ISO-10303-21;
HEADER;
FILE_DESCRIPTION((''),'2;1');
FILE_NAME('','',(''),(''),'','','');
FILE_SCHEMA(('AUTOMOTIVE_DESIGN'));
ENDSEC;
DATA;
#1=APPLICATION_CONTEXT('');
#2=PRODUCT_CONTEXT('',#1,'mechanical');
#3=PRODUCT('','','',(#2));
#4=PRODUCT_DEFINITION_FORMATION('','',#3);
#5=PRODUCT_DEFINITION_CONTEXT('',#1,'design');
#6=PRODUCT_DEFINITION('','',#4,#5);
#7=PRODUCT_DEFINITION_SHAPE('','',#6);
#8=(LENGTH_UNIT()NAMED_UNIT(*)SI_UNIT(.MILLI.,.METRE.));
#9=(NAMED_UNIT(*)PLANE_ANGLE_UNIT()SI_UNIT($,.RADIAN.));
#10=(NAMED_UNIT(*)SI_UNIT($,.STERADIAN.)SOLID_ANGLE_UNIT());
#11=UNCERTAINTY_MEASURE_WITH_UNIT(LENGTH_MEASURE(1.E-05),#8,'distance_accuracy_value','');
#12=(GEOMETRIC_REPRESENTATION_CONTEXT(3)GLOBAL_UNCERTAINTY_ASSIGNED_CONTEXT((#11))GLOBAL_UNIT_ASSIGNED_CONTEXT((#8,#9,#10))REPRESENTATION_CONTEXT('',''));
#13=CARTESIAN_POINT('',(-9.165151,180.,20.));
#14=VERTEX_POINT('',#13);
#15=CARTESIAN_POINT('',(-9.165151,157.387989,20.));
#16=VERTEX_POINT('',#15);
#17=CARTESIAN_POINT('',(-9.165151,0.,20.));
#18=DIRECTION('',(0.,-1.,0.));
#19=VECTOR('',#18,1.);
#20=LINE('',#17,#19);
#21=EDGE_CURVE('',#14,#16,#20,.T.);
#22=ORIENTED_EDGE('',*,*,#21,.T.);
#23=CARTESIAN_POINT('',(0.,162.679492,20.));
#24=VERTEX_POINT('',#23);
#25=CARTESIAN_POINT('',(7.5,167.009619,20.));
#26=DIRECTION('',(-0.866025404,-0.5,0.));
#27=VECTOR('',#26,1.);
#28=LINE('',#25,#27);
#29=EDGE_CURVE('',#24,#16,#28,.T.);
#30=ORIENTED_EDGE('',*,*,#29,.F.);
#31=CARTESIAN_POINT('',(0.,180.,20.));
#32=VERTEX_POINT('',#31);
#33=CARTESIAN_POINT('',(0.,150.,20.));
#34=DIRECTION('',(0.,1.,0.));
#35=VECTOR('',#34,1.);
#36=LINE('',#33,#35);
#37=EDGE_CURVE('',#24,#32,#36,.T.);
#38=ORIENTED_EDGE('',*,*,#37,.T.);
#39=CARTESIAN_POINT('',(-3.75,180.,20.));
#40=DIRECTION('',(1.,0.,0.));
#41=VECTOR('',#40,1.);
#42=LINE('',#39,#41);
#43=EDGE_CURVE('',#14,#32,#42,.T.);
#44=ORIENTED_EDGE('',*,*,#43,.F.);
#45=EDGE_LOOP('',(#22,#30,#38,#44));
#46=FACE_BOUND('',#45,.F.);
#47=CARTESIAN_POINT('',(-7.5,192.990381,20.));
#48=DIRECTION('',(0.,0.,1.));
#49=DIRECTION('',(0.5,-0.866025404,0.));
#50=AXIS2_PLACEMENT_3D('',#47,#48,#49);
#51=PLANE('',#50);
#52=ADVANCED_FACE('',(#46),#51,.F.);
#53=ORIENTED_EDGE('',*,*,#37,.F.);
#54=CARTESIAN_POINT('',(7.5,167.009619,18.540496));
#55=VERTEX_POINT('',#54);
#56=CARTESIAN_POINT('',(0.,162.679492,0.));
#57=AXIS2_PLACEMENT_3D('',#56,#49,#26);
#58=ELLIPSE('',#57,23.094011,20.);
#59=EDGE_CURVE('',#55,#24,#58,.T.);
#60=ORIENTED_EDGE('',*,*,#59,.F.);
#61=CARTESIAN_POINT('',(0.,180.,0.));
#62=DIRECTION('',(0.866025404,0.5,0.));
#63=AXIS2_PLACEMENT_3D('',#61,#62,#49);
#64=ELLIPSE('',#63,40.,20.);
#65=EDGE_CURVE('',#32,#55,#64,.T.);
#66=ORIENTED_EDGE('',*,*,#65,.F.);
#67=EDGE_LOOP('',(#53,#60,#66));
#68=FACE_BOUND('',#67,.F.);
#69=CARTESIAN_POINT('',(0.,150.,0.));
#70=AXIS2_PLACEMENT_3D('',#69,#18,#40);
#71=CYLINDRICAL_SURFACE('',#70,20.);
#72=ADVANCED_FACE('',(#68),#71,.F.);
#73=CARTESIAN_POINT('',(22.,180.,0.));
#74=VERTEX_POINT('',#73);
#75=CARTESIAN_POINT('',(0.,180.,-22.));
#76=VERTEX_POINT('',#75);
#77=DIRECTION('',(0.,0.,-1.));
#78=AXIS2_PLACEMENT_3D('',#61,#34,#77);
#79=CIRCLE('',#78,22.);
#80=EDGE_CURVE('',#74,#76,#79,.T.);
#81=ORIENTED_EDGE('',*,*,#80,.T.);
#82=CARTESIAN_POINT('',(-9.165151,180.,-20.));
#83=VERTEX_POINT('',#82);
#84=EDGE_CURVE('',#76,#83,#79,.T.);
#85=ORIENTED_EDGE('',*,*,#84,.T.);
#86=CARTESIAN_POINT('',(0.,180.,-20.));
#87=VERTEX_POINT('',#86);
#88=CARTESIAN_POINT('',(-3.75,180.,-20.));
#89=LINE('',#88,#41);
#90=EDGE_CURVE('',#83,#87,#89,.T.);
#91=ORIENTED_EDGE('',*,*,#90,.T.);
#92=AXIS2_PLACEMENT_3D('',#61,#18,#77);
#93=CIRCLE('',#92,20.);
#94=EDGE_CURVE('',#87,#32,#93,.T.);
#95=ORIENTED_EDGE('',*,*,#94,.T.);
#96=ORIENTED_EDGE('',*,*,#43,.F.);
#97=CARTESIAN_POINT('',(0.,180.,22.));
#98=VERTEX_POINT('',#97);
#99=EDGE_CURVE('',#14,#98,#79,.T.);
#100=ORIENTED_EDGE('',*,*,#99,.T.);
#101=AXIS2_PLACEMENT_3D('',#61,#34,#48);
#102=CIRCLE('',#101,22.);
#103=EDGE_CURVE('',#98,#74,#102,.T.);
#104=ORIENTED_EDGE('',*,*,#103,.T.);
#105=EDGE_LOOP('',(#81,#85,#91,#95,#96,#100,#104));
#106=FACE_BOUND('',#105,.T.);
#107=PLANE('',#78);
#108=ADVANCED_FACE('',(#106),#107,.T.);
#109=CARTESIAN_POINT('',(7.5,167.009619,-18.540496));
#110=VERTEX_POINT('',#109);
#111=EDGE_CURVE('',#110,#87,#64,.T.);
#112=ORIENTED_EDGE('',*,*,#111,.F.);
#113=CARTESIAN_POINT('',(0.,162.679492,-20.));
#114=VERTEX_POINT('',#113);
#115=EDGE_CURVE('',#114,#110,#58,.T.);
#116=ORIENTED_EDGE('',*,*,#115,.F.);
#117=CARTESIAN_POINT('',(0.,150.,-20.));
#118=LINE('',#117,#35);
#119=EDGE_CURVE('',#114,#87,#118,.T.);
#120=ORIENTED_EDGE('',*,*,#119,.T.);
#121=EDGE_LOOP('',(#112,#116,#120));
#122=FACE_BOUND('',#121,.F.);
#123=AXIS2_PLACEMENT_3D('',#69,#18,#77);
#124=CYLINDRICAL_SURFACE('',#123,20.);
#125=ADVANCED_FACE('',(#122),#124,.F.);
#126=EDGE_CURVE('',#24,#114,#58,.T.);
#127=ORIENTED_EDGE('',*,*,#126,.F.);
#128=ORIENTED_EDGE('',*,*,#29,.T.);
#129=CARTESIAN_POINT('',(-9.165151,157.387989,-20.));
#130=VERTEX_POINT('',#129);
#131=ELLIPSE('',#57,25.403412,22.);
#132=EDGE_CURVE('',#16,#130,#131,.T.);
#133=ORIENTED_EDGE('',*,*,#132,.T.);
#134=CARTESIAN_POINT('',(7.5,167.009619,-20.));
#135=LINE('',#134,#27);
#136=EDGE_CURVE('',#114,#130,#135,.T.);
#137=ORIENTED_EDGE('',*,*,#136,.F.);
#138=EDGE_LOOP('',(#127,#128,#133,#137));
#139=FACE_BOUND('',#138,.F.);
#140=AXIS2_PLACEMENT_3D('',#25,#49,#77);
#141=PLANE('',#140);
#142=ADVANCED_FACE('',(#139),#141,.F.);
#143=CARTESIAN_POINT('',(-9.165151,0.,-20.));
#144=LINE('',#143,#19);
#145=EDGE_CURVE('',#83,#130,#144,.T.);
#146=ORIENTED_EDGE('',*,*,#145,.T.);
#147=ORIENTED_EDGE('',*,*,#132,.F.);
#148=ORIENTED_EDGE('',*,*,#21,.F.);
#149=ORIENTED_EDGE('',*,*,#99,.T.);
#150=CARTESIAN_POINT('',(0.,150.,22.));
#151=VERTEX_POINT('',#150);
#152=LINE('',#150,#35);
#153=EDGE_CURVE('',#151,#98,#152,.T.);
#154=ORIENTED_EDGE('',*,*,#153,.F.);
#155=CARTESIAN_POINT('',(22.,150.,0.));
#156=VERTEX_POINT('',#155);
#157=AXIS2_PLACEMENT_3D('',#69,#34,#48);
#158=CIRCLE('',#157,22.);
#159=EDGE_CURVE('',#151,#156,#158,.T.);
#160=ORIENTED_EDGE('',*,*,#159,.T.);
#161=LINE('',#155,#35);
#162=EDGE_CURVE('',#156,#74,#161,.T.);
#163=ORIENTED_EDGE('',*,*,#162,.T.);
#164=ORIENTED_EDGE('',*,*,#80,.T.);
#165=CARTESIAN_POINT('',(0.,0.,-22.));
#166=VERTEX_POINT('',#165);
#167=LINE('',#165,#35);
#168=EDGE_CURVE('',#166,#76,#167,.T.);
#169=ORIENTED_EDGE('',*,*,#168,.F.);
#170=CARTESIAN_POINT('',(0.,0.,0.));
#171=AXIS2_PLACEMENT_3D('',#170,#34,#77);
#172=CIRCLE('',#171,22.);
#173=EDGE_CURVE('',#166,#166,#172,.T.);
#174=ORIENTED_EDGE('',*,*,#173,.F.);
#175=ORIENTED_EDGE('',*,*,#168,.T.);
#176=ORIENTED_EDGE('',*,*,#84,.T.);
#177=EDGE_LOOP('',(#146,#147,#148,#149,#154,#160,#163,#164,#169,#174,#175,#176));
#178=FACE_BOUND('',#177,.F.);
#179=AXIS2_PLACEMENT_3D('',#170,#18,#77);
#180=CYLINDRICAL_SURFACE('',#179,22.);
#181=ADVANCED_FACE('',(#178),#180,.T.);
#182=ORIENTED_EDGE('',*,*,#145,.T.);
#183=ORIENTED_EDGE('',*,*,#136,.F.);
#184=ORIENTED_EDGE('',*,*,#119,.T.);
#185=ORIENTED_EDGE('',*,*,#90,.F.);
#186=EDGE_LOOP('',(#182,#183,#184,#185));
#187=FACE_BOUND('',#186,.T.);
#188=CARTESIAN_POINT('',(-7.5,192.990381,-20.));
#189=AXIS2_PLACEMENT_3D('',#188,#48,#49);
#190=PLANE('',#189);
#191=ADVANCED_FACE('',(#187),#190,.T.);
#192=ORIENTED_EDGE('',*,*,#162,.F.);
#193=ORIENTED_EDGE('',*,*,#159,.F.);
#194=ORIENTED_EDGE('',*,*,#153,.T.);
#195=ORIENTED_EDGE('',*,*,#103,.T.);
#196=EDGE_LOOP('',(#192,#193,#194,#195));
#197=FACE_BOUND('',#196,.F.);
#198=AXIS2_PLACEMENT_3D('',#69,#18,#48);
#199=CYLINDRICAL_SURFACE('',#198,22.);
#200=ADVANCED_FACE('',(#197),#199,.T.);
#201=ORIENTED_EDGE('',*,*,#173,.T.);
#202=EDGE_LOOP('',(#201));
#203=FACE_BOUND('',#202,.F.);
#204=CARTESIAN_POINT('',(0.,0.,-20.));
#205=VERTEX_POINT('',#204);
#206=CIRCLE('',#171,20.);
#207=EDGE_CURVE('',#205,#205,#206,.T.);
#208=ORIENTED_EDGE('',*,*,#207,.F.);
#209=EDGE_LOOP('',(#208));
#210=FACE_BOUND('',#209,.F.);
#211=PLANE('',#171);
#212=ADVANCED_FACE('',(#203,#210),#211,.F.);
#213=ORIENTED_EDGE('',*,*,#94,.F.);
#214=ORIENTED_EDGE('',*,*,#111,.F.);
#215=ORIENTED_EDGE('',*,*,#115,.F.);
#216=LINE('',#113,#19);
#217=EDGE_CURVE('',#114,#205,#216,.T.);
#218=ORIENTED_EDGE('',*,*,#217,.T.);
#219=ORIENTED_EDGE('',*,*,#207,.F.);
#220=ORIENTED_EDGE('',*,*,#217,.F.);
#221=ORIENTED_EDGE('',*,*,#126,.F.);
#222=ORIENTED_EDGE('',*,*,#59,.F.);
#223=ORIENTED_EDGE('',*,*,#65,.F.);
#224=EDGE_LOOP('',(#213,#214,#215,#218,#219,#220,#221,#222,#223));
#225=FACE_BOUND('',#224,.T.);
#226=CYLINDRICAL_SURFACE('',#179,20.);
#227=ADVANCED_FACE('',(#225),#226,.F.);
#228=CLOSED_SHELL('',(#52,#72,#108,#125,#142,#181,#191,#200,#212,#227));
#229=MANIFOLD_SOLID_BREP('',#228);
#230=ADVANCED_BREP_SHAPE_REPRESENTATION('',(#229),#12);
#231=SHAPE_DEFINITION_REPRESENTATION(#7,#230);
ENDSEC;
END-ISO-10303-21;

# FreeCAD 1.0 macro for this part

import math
import FreeCAD as App
import Part
import Sketcher

V = App.Vector
Q = App.Units.Quantity

doc = App.newDocument("Part")
body = doc.addObject("PartDesign::Body", "Body")

# Sketch on XZ plane
sketch1 = body.newObject("Sketcher::SketchObject", "Sketch")
sketch1.AttachmentSupport = (doc.getObject("XZ_Plane"), [""])
sketch1.MapMode = "FlatFace"
sketch1.addGeometry([
    Part.Circle(V(0, 0, 0), V(0, 0, 1), 22),
    Part.Circle(V(0, 0, 0), V(0, 0, 1), 20),
], False)
sketch1.addConstraint([
    Sketcher.Constraint("Coincident", 0, 3, -1, 1),
    Sketcher.Constraint("Coincident", 1, 3, -1, 1),
    Sketcher.Constraint("Diameter", 0, Q("44 mm")),
    Sketcher.Constraint("Diameter", 1, Q("40 mm")),
])
pad1 = body.newObject("PartDesign::Pad", "Pad")
pad1.Profile = sketch1
pad1.Length = 180
pad1.Reversed = True

# Sketch on an angled plane
sketch2 = body.newObject("Sketcher::SketchObject", "Sketch001")
sketch2.Placement = App.Placement(V(77.942286, 45, 0), App.Rotation(V(0.5, -0.866025404, 0), V(0, 0, -1), V(0.866025404, 0.5, 0), "ZXY"))
sketch2.addGeometry([
    Part.LineSegment(V(-171, 20, 0), V(-171, -20, 0)),
    Part.LineSegment(V(-171, -20, 0), V(-141, -20, 0)),
    Part.LineSegment(V(-141, -20, 0), V(-141, 20, 0)),
    Part.LineSegment(V(-141, 20, 0), V(-171, 20, 0)),
], False)
sketch2.addConstraint([
    Sketcher.Constraint("Coincident", 0, 2, 1, 1),
    Sketcher.Constraint("Coincident", 1, 2, 2, 1),
    Sketcher.Constraint("Coincident", 2, 2, 3, 1),
    Sketcher.Constraint("Coincident", 3, 2, 0, 1),
    Sketcher.Constraint("Vertical", 0),
    Sketcher.Constraint("Horizontal", 1),
    Sketcher.Constraint("Vertical", 2),
    Sketcher.Constraint("Horizontal", 3),
    Sketcher.Constraint("DistanceX", 1, 1, 1, 2, Q("30 mm")),
    Sketcher.Constraint("DistanceY", 0, 2, 0, 1, Q("40 mm")),
    Sketcher.Constraint("DistanceY", 0, 2, -1, 1, Q("20 mm")),
    Sketcher.Constraint("DistanceX", 0, 2, -1, 1, Q("170.884573 mm")),
])
pocket1 = body.newObject("PartDesign::Pocket", "Pocket")
pocket1.Profile = sketch2
pocket1.Length = 63

# Sketch on XZ plane
sketch3 = body.newObject("Sketcher::SketchObject", "Sketch002")
sketch3.AttachmentSupport = (doc.getObject("XZ_Plane"), [""])
sketch3.MapMode = "FlatFace"
sketch3.AttachmentOffset = App.Placement(V(0, 0, -150), App.Rotation())
sketch3.addGeometry([
    Part.ArcOfCircle(Part.Circle(V(0, 0, 0), V(0, 0, 1), 20), math.radians(0), math.radians(90)),  # 0
    Part.LineSegment(V(0, 20, 0), V(0, 22, 0)),  # 1
    Part.ArcOfCircle(Part.Circle(V(0, 0, 0), V(0, 0, 1), 22), math.radians(0), math.radians(90)),  # 2
    Part.ArcOfCircle(Part.Circle(V(0, 0, 0), V(0, 0, 1), 22), math.radians(-90), math.radians(0)),  # 3
    Part.LineSegment(V(0, -22, 0), V(0, -20, 0)),  # 4
    Part.ArcOfCircle(Part.Circle(V(0, 0, 0), V(0, 0, 1), 20), math.radians(-90), math.radians(0)),  # 5
], False)
sketch3.addConstraint([
    Sketcher.Constraint("Coincident", 0, 2, 1, 1),
    Sketcher.Constraint("Coincident", 1, 2, 2, 2),
    Sketcher.Constraint("Tangent", 2, 1, 3, 2),
    Sketcher.Constraint("Coincident", 3, 1, 4, 1),
    Sketcher.Constraint("Coincident", 4, 2, 5, 1),
    Sketcher.Constraint("Tangent", 5, 2, 0, 1),
    Sketcher.Constraint("Vertical", 1),
    Sketcher.Constraint("Vertical", 4),
    Sketcher.Constraint("Coincident", 0, 3, -1, 1),
    Sketcher.Constraint("Coincident", 2, 3, -1, 1),
    Sketcher.Constraint("Equal", 2, 3),
    Sketcher.Constraint("Equal", 0, 5),
    Sketcher.Constraint("PointOnObject", 0, 2, -2),
    Sketcher.Constraint("PointOnObject", 2, 1, -1),
    Sketcher.Constraint("PointOnObject", 3, 1, -2),
    Sketcher.Constraint("PointOnObject", 5, 2, -1),
    Sketcher.Constraint("Radius", 0, Q("20 mm")),
    Sketcher.Constraint("Radius", 2, Q("22 mm")),
])
pad2 = body.newObject("PartDesign::Pad", "Pad001")
pad2.Profile = sketch3
pad2.Length = 30
pad2.Reversed = True

doc.recompute()
